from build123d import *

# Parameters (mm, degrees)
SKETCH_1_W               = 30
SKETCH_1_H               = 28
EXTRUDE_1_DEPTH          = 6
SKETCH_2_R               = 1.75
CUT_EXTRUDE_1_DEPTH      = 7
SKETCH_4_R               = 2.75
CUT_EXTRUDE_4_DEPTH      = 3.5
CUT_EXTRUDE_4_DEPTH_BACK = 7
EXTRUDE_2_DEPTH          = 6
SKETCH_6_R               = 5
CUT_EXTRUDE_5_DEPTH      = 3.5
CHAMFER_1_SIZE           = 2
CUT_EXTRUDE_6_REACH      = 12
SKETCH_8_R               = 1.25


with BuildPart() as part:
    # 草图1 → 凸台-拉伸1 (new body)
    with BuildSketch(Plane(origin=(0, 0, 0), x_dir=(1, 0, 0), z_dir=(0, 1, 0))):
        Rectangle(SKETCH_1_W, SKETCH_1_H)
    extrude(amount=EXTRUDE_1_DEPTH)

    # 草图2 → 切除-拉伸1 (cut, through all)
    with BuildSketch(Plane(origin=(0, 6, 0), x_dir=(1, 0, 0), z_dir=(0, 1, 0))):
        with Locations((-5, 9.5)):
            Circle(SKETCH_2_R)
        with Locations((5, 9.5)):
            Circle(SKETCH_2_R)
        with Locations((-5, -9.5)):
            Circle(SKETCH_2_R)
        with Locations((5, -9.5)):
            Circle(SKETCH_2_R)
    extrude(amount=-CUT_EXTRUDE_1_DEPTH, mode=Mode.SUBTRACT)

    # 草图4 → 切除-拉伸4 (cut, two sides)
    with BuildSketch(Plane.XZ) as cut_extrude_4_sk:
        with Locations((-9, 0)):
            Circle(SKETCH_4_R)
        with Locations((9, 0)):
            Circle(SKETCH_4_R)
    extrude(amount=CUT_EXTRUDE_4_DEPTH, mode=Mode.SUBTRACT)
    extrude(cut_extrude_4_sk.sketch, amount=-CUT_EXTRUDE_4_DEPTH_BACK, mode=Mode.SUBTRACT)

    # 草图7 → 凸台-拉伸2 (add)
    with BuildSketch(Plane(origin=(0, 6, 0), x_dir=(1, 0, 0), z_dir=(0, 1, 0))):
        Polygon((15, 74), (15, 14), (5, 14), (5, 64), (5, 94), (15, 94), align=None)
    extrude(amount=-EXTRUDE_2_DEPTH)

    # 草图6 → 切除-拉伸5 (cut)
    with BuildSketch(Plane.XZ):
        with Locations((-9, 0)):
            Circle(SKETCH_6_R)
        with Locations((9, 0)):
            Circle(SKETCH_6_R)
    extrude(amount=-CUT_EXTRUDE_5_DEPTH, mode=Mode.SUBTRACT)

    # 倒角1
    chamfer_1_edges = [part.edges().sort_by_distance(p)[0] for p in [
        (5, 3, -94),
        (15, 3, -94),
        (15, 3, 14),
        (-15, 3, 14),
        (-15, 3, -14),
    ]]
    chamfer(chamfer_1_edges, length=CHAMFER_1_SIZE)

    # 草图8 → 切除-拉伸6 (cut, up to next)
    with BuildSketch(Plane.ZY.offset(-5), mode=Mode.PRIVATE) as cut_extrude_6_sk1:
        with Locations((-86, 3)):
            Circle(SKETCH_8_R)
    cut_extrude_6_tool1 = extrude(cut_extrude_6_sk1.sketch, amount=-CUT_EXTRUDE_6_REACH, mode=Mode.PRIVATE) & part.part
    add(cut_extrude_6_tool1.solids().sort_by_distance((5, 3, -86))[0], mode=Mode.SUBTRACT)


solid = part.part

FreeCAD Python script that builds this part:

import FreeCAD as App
import Part
import Sketcher
Q = App.Units.Quantity


def edges_at(feature, points):
    """Names of the edges that pass closest to the given points."""
    edges = feature.Shape.Edges
    near = lambda p: min(range(len(edges)), key=lambda i: edges[i].distToShape(Part.Vertex(*p))[0])
    return sorted({f"Edge{near(p) + 1}" for p in points})

doc = App.newDocument("Part")
body = doc.addObject("PartDesign::Body", "Body")

# Sketch on XZ plane
sketch1 = body.newObject("Sketcher::SketchObject", "Sketch")
sketch1.AttachmentSupport = (doc.getObject("XZ_Plane"), [""])
sketch1.MapMode = "FlatFace"
sketch1.addGeometry([
    Part.LineSegment(App.Vector(-15, -14, 0), App.Vector(-15, 14, 0)),
    Part.LineSegment(App.Vector(-15, 14, 0), App.Vector(15, 14, 0)),
    Part.LineSegment(App.Vector(15, 14, 0), App.Vector(15, -14, 0)),
    Part.LineSegment(App.Vector(15, -14, 0), App.Vector(-15, -14, 0)),
], False)
sketch1.addConstraint([
    Sketcher.Constraint("Coincident", 0, 2, 1, 1),
    Sketcher.Constraint("Coincident", 1, 2, 2, 1),
    Sketcher.Constraint("Coincident", 2, 2, 3, 1),
    Sketcher.Constraint("Coincident", 3, 2, 0, 1),
    Sketcher.Constraint("Vertical", 0),
    Sketcher.Constraint("Horizontal", 1),
    Sketcher.Constraint("Vertical", 2),
    Sketcher.Constraint("Horizontal", 3),
    Sketcher.Constraint("Symmetric", 0, 2, 2, 2, -1, 1),
    Sketcher.Constraint("DistanceX", 1, 1, 1, 2, Q("30 mm")),
    Sketcher.Constraint("DistanceY", 0, 1, 0, 2, Q("28 mm")),
])
pad1 = body.newObject("PartDesign::Pad", "Pad")
pad1.Profile = sketch1
pad1.Length = 6
pad1.Reversed = True

# Sketch on XZ plane
sketch2 = body.newObject("Sketcher::SketchObject", "Sketch001")
sketch2.AttachmentSupport = (doc.getObject("XZ_Plane"), [""])
sketch2.MapMode = "FlatFace"
sketch2.AttachmentOffset = App.Placement(App.Vector(0, 0, -6), App.Rotation())
sketch2.addGeometry([
    Part.Circle(App.Vector(-5, -9.5, 0), App.Vector(0, 0, 1), 1.8),
    Part.Circle(App.Vector(5, -9.5, 0), App.Vector(0, 0, 1), 1.8),
    Part.Circle(App.Vector(-5, 9.5, 0), App.Vector(0, 0, 1), 1.8),
    Part.Circle(App.Vector(5, 9.5, 0), App.Vector(0, 0, 1), 1.8),
], False)
sketch2.addConstraint([
    Sketcher.Constraint("Equal", 0, 1),
    Sketcher.Constraint("Equal", 1, 2),
    Sketcher.Constraint("Equal", 2, 3),
    Sketcher.Constraint("Symmetric", 1, 3, 2, 3, -1, 1),
    Sketcher.Constraint("Symmetric", 0, 3, 3, 3, -1, 1),
    Sketcher.Constraint("Symmetric", 0, 3, 1, 3, -2),
    Sketcher.Constraint("Diameter", 0, Q("3.5 mm")),
    Sketcher.Constraint("DistanceX", 0, 3, -1, 1, Q("5 mm")),
    Sketcher.Constraint("DistanceY", 0, 3, 2, 3, Q("19 mm")),
])
pocket1 = body.newObject("PartDesign::Pocket", "Pocket")
pocket1.Profile = sketch2
pocket1.Type = "ThroughAll"
pocket1.Reversed = True

# Sketch on XZ plane
sketch3 = body.newObject("Sketcher::SketchObject", "Sketch002")
sketch3.AttachmentSupport = (doc.getObject("XZ_Plane"), [""])
sketch3.MapMode = "FlatFace"
sketch3.addGeometry([
    Part.Circle(App.Vector(-9, 0, 0), App.Vector(0, 0, 1), 2.8),
    Part.Circle(App.Vector(9, 0, 0), App.Vector(0, 0, 1), 2.8),
], False)
sketch3.addConstraint([
    Sketcher.Constraint("Equal", 0, 1),
    Sketcher.Constraint("Symmetric", 0, 3, 1, 3, -1, 1),
    Sketcher.Constraint("PointOnObject", 0, 3, -1),
    Sketcher.Constraint("Diameter", 0, Q("5.5 mm")),
    Sketcher.Constraint("DistanceX", 0, 3, -1, 1, Q("9 mm")),
])
pocket2 = body.newObject("PartDesign::Pocket", "Pocket001")
pocket2.Profile = sketch3
pocket2.Type = "ThroughAll"
pocket2.Midplane = True

# Sketch on XZ plane
sketch4 = body.newObject("Sketcher::SketchObject", "Sketch003")
sketch4.AttachmentSupport = (doc.getObject("XZ_Plane"), [""])
sketch4.MapMode = "FlatFace"
sketch4.AttachmentOffset = App.Placement(App.Vector(0, 0, -6), App.Rotation())
sketch4.addGeometry([
    Part.LineSegment(App.Vector(15, -14, 0), App.Vector(15, -94, 0)),
    Part.LineSegment(App.Vector(15, -94, 0), App.Vector(5, -94, 0)),
    Part.LineSegment(App.Vector(5, -94, 0), App.Vector(5, -14, 0)),
    Part.LineSegment(App.Vector(5, -14, 0), App.Vector(15, -14, 0)),
], False)
sketch4.addConstraint([
    Sketcher.Constraint("Coincident", 0, 2, 1, 1),
    Sketcher.Constraint("Coincident", 1, 2, 2, 1),
    Sketcher.Constraint("Coincident", 2, 2, 3, 1),
    Sketcher.Constraint("Coincident", 3, 2, 0, 1),
    Sketcher.Constraint("Vertical", 0),
    Sketcher.Constraint("Horizontal", 1),
    Sketcher.Constraint("Vertical", 2),
    Sketcher.Constraint("Horizontal", 3),
    Sketcher.Constraint("DistanceX", 1, 2, 1, 1, Q("10 mm")),
    Sketcher.Constraint("DistanceY", 0, 2, 0, 1, Q("80 mm")),
    Sketcher.Constraint("DistanceX", -1, 1, 0, 2, Q("15 mm")),
    Sketcher.Constraint("DistanceY", 0, 2, -1, 1, Q("94 mm")),
])
pad2 = body.newObject("PartDesign::Pad", "Pad001")
pad2.Profile = sketch4
pad2.Length = 6

# Sketch on XZ plane
sketch5 = body.newObject("Sketcher::SketchObject", "Sketch004")
sketch5.AttachmentSupport = (doc.getObject("XZ_Plane"), [""])
sketch5.MapMode = "FlatFace"
sketch5.addGeometry([
    Part.Circle(App.Vector(-9, 0, 0), App.Vector(0, 0, 1), 5),
    Part.Circle(App.Vector(9, 0, 0), App.Vector(0, 0, 1), 5),
], False)
sketch5.addConstraint([
    Sketcher.Constraint("Equal", 0, 1),
    Sketcher.Constraint("Symmetric", 0, 3, 1, 3, -1, 1),
    Sketcher.Constraint("PointOnObject", 0, 3, -1),
    Sketcher.Constraint("Diameter", 0, Q("10 mm")),
    Sketcher.Constraint("DistanceX", 0, 3, -1, 1, Q("9 mm")),
])
pocket3 = body.newObject("PartDesign::Pocket", "Pocket002")
pocket3.Profile = sketch5
pocket3.Length = 3.5
doc.recompute()

chamfer = body.newObject("PartDesign::Chamfer", "Chamfer")
chamfer.Base = (pocket3, edges_at(pocket3, [
    (5, 3, -94),
    (15, 3, -94),
    (15, 3, 14),
    (-15, 3, 14),
    (-15, 3, -14),
]))
chamfer.Size = 2

# Sketch on YZ plane
sketch6 = body.newObject("Sketcher::SketchObject", "Sketch005")
sketch6.AttachmentSupport = (doc.getObject("YZ_Plane"), [""])
sketch6.MapMode = "FlatFace"
sketch6.AttachmentOffset = App.Placement(App.Vector(0, 0, 5), App.Rotation())
sketch6.addGeometry(Part.Circle(App.Vector(3, -86, 0), App.Vector(0, 0, 1), 1.2), False)
sketch6.addConstraint([
    Sketcher.Constraint("Diameter", 0, Q("2.5 mm")),
    Sketcher.Constraint("DistanceX", -1, 1, 0, 3, Q("3 mm")),
    Sketcher.Constraint("DistanceY", 0, 3, -1, 1, Q("86 mm")),
])
pocket4 = body.newObject("PartDesign::Pocket", "Pocket003")
pocket4.Profile = sketch6
pocket4.Type = "UpToFirst"
pocket4.Reversed = True

doc.recompute()
